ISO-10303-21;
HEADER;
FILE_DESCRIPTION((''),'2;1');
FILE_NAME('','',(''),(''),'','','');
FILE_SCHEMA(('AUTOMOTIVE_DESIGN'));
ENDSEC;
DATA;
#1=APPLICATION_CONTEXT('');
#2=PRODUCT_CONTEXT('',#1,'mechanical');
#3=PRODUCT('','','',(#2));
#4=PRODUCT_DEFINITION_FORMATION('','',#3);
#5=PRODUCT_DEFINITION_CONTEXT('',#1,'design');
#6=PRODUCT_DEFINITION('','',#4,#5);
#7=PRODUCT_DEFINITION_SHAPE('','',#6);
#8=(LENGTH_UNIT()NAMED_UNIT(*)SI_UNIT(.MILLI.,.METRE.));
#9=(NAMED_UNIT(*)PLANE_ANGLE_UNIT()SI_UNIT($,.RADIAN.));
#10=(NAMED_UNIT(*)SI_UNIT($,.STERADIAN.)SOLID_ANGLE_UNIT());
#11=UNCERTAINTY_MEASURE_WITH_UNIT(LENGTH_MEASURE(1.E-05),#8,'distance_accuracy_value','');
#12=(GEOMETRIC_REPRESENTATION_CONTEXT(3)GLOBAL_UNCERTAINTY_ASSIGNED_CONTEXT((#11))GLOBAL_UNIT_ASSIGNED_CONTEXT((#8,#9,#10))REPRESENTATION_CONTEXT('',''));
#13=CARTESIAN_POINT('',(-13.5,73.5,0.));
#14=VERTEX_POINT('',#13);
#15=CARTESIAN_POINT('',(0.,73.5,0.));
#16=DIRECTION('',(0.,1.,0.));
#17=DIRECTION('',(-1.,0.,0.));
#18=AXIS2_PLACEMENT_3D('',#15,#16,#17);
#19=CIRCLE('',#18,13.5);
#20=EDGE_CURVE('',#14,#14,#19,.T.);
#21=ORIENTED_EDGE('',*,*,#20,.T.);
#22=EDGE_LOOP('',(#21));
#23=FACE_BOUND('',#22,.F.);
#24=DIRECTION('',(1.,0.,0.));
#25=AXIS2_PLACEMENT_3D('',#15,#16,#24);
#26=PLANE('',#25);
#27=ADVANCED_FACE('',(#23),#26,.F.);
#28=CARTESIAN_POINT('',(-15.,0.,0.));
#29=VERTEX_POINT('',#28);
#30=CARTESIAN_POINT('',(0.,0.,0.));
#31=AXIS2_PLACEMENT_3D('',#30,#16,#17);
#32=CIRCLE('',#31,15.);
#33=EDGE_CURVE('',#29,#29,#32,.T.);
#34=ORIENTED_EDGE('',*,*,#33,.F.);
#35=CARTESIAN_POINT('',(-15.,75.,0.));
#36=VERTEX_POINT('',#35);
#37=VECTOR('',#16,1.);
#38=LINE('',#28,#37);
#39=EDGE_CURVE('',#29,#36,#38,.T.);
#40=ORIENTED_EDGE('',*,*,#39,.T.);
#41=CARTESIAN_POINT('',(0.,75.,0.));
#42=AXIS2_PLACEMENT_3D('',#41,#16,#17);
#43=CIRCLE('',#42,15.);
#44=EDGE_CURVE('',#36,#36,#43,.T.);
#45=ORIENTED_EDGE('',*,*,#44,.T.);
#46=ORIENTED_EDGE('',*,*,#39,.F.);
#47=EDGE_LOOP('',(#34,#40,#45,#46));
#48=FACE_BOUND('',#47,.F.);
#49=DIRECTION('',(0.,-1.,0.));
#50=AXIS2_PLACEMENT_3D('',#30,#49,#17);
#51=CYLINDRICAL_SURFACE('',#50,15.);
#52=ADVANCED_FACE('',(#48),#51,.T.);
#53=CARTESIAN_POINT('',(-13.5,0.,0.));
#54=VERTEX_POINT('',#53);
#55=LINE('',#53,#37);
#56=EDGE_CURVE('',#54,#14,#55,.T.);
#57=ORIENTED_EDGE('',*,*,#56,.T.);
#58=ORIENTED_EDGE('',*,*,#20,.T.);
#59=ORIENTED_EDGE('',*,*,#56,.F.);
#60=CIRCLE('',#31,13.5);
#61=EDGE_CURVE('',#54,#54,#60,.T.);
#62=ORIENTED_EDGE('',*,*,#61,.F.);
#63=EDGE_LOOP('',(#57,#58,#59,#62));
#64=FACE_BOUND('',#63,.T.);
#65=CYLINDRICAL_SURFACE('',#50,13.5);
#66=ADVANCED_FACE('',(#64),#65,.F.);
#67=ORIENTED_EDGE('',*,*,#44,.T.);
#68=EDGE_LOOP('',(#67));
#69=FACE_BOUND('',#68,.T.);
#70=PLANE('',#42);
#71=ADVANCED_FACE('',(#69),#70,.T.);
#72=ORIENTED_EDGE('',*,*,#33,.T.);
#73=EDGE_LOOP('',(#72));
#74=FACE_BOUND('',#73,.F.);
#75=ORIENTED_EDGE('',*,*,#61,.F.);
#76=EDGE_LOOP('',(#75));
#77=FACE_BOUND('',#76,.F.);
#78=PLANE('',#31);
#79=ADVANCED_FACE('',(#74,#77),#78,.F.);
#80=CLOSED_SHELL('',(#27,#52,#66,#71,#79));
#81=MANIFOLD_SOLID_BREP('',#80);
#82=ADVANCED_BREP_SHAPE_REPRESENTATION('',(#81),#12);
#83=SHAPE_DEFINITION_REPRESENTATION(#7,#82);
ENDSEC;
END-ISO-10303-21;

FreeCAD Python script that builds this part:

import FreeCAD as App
import Part
import Sketcher
from FreeCAD import Vector
Q = App.Units.Quantity

doc = App.newDocument("Part")
body = doc.addObject("PartDesign::Body", "Body")

# Sketch on XZ plane
sketch1 = doc.addObject("Sketcher::SketchObject", "Sketch")
body.addObject(sketch1)
sketch1.AttachmentSupport = (doc.XZ_Plane, [""])
sketch1.MapMode = "FlatFace"
sketch1.addGeometry([
    Part.Circle(Vector(0, 0, 0), Vector(0, 0, 1), 15),
    Part.Circle(Vector(0, 0, 0), Vector(0, 0, 1), 14),
], False)
sketch1.addConstraint([
    Sketcher.Constraint("Coincident", 0, 3, -1, 1),
    Sketcher.Constraint("Coincident", 1, 3, -1, 1),
    Sketcher.Constraint("Diameter", 0, Q("30 mm")),
    Sketcher.Constraint("Diameter", 1, Q("27 mm")),
])
pad1 = doc.addObject("PartDesign::Pad", "Pad")
body.addObject(pad1)
pad1.Profile = sketch1
pad1.Length = 75
pad1.Reversed = True

# Sketch on XZ plane
sketch2 = doc.addObject("Sketcher::SketchObject", "Sketch001")
body.addObject(sketch2)
sketch2.AttachmentSupport = (doc.XZ_Plane, [""])
sketch2.MapMode = "FlatFace"
sketch2.AttachmentOffset = App.Placement(Vector(0, 0, -75), App.Rotation())
sketch2.addGeometry(Part.Circle(Vector(0, 0, 0), Vector(0, 0, 1), 14), False)
sketch2.addConstraint([
    Sketcher.Constraint("Coincident", 0, 3, -1, 1),
    Sketcher.Constraint("Diameter", 0, Q("27 mm")),
])
pad2 = doc.addObject("PartDesign::Pad", "Pad001")
body.addObject(pad2)
pad2.Profile = sketch2
pad2.Length = 1.5

doc.recompute()
